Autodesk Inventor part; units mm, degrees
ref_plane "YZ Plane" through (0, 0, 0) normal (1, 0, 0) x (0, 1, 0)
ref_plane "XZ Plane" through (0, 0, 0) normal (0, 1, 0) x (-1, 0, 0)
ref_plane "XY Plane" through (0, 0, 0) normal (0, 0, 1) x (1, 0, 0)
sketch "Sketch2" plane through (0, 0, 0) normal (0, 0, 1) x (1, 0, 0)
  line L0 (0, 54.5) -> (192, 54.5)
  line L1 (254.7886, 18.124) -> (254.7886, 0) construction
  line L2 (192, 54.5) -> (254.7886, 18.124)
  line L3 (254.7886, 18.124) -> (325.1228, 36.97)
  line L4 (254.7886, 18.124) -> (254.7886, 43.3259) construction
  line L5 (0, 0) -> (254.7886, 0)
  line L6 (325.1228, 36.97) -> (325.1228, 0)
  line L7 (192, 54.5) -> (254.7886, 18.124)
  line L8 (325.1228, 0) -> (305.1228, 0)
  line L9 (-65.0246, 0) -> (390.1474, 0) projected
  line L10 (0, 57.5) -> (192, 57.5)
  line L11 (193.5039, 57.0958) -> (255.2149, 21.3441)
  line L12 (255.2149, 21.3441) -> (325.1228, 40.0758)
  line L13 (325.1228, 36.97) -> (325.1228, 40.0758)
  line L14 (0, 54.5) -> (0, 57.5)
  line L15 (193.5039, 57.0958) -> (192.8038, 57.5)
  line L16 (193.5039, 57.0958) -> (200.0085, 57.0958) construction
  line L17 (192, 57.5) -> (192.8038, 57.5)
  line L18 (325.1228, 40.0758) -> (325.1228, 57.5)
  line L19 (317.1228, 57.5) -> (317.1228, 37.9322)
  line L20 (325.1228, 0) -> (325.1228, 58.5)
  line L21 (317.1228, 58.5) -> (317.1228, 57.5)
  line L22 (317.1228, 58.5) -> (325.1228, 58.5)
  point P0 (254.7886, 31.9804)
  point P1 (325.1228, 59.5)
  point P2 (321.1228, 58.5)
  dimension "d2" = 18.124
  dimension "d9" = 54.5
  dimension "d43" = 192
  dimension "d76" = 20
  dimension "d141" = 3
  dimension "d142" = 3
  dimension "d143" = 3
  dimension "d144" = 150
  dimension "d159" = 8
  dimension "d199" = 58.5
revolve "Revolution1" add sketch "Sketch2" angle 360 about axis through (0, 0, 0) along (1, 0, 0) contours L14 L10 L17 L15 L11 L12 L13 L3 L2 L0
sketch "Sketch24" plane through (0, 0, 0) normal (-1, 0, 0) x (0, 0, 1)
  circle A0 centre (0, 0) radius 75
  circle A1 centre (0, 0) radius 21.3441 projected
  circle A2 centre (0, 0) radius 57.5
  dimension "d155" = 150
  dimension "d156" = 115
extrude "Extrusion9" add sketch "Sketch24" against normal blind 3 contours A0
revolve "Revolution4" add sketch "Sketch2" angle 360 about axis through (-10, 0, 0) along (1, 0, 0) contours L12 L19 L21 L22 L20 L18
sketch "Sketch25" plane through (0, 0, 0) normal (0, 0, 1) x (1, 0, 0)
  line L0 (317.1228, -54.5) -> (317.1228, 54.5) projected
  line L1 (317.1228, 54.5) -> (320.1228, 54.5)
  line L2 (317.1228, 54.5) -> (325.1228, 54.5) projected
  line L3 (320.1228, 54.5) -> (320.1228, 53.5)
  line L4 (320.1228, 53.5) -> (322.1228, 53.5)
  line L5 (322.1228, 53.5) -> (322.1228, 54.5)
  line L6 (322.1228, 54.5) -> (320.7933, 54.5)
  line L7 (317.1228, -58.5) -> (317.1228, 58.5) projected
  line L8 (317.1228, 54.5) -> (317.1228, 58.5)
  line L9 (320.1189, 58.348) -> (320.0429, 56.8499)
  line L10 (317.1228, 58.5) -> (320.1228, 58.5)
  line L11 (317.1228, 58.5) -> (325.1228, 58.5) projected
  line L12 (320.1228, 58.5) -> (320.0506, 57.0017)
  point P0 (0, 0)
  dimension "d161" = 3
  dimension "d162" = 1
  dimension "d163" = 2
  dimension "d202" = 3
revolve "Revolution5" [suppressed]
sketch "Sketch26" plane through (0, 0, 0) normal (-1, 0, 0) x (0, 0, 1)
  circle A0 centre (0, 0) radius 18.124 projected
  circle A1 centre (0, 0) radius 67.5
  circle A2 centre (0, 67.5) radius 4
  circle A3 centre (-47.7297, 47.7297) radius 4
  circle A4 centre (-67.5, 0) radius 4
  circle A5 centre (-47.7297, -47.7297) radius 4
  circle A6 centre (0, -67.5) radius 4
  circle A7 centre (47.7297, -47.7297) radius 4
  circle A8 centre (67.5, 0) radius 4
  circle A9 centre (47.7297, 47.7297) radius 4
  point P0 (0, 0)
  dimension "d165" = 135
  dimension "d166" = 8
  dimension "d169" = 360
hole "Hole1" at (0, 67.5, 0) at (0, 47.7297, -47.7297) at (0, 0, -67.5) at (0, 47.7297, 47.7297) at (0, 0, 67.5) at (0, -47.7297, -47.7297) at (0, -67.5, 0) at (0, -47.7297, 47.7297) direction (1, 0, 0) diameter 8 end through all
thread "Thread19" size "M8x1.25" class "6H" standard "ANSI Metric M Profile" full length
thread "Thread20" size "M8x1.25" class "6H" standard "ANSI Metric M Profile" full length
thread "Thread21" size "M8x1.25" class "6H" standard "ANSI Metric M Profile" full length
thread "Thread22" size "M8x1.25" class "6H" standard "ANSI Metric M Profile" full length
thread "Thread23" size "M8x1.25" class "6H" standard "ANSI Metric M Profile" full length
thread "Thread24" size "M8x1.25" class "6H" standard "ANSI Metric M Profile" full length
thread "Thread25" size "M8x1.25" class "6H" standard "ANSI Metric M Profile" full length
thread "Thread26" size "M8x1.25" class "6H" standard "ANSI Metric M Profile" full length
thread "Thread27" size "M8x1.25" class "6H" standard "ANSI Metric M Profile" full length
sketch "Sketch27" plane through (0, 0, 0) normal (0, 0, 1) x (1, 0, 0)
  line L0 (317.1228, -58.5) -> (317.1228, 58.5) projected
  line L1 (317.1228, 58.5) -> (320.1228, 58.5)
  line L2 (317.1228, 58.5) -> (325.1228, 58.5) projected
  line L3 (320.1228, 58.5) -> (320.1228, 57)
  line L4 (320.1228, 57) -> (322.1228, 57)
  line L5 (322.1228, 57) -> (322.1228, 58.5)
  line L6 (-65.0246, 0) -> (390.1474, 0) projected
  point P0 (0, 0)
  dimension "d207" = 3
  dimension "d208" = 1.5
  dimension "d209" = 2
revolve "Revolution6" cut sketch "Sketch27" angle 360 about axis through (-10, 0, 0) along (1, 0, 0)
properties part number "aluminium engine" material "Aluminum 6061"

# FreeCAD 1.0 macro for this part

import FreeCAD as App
import Part
import Sketcher

V = App.Vector
Q = App.Units.Quantity

doc = App.newDocument("Part")
params = doc.addObject("Spreadsheet::Sheet", "Params")
for row, (alias, value) in enumerate([
    ("sketch1_width", "192 mm"),
    ("sketch1_height", "3 mm"),
    ("revolution_angle", "360 deg"),
    ("sketch2_diameter", "150 mm"),
    ("sketch2_diameter2", "115 mm"),
    ("pad1_length", "3 mm"),
    ("sketch3_width", "8 mm"),
    ("revolution2_angle", "360 deg"),
    ("sketch4_diameter", "8 mm"),
    ("hole_diameter", "8 mm"),
    ("sketch5_width", "2 mm"),
    ("sketch5_height", "1.5 mm"),
    ("groove_angle", "360 deg"),
], start=1):
    params.set(f"A{row}", alias)
    params.set(f"B{row}", "=" + value)
    params.setAlias(f"B{row}", alias)

body = doc.addObject("PartDesign::Body", "Body")

# Sketch on XY plane
sketch1 = body.newObject("Sketcher::SketchObject", "Sketch")
sketch1.AttachmentSupport = (doc.getObject("XY_Plane"), [""])
sketch1.MapMode = "FlatFace"
sketch1.addGeometry(Part.LineSegment(V(0, 57.5, 0), V(0, 54.5, 0)), False)
sketch1.addGeometry(Part.LineSegment(V(0, 54.5, 0), V(192, 54.5, 0)), False)
sketch1.addGeometry(Part.LineSegment(V(192, 54.5, 0), V(254.7886, 18.124, 0)), False)
sketch1.addGeometry(Part.LineSegment(V(254.7886, 18.124, 0), V(325.1228, 36.97, 0)), False)
sketch1.addGeometry(Part.LineSegment(V(325.1228, 36.97, 0), V(325.1228, 40.0758, 0)), False)
sketch1.addGeometry(Part.LineSegment(V(325.1228, 40.0758, 0), V(255.2149, 21.3441, 0)), False)
sketch1.addGeometry(Part.LineSegment(V(255.2149, 21.3441, 0), V(193.5039, 57.0958, 0)), False)
sketch1.addGeometry(Part.LineSegment(V(193.5039, 57.0958, 0), V(192.8038, 57.5, 0)), False)
sketch1.addGeometry(Part.LineSegment(V(192.8038, 57.5, 0), V(0, 57.5, 0)), False)
sketch1.addConstraint(Sketcher.Constraint("Coincident", 0, 2, 1, 1))
sketch1.addConstraint(Sketcher.Constraint("Coincident", 1, 2, 2, 1))
sketch1.addConstraint(Sketcher.Constraint("Coincident", 2, 2, 3, 1))
sketch1.addConstraint(Sketcher.Constraint("Coincident", 3, 2, 4, 1))
sketch1.addConstraint(Sketcher.Constraint("Coincident", 4, 2, 5, 1))
sketch1.addConstraint(Sketcher.Constraint("Coincident", 5, 2, 6, 1))
sketch1.addConstraint(Sketcher.Constraint("Coincident", 6, 2, 7, 1))
sketch1.addConstraint(Sketcher.Constraint("Coincident", 7, 2, 8, 1))
sketch1.addConstraint(Sketcher.Constraint("Coincident", 8, 2, 0, 1))
sketch1.addConstraint(Sketcher.Constraint("Vertical", 0))
sketch1.addConstraint(Sketcher.Constraint("Horizontal", 1))
sketch1.addConstraint(Sketcher.Constraint("Vertical", 4))
sketch1.addConstraint(Sketcher.Constraint("Horizontal", 8))
sketch1.addConstraint(Sketcher.Constraint("PointOnObject", 0, 2, -2))
sketch1.addConstraint(Sketcher.Constraint("DistanceX", 1, 1, 1, 2, 192.0))
sketch1.addConstraint(Sketcher.Constraint("DistanceY", 0, 2, 0, 1, 3.0))
sketch1.addConstraint(Sketcher.Constraint("DistanceY", -1, 1, 0, 2, 54.5))
sketch1.addConstraint(Sketcher.Constraint("DistanceY", -1, 1, 2, 2, 18.124))
sketch1.addConstraint(Sketcher.Constraint("DistanceX", 7, 2, 6, 2, 0.7))
sketch1.addConstraint(Sketcher.Constraint("DistanceY", -1, 1, 3, 2, 36.97))
sketch1.addConstraint(Sketcher.Constraint("DistanceY", 2, 2, 5, 2, 3.22))
sketch1.addConstraint(Sketcher.Constraint("DistanceY", 4, 2, 6, 2, 17.02))
sketch1.addConstraint(Sketcher.Constraint("Distance", 5, 72.374))
sketch1.addConstraint(Sketcher.Constraint("DistanceX", 8, 2, 8, 1, 192.8038))
sketch1.addConstraint(Sketcher.Constraint("DistanceY", 4, 1, 4, 2, 3.1058))
sketch1.addConstraint(Sketcher.Constraint("DistanceX", -1, 1, 5, 2, 255.215))
sketch1.addConstraint(Sketcher.Constraint("Distance", 2, 72.5646))
sketch1.setExpression("Constraints[14]", "Params.sketch1_width")
sketch1.setExpression("Constraints[15]", "Params.sketch1_height")
revolution = body.newObject("PartDesign::Revolution", "Revolution")
revolution.Profile = sketch1
revolution.ReferenceAxis = (sketch1, ["H_Axis"])
revolution.setExpression("Angle", "Params.revolution_angle")

# Sketch on YZ plane
sketch2 = body.newObject("Sketcher::SketchObject", "Sketch001")
sketch2.AttachmentSupport = (doc.getObject("YZ_Plane"), [""])
sketch2.MapMode = "FlatFace"
sketch2.addGeometry(Part.Circle(V(0, 0, 0), V(0, 0, 1), 75), False)
sketch2.addGeometry(Part.Circle(V(0, 0, 0), V(0, 0, 1), 58), False)
sketch2.addConstraint(Sketcher.Constraint("Coincident", 0, 3, -1, 1))
sketch2.addConstraint(Sketcher.Constraint("Coincident", 1, 3, -1, 1))
sketch2.addConstraint(Sketcher.Constraint("Diameter", 0, 150.0))
sketch2.addConstraint(Sketcher.Constraint("Diameter", 1, 115.0))
sketch2.setExpression("Constraints[2]", "Params.sketch2_diameter")
sketch2.setExpression("Constraints[3]", "Params.sketch2_diameter2")
pad1 = body.newObject("PartDesign::Pad", "Pad")
pad1.Profile = sketch2
pad1.setExpression("Length", "Params.pad1_length")

# Sketch on XY plane
sketch3 = body.newObject("Sketcher::SketchObject", "Sketch002")
sketch3.AttachmentSupport = (doc.getObject("XY_Plane"), [""])
sketch3.MapMode = "FlatFace"
sketch3.addGeometry(Part.LineSegment(V(317, 38, 0), V(325, 40, 0)), False)
sketch3.addGeometry(Part.LineSegment(V(325, 40, 0), V(325, 58, 0)), False)
sketch3.addGeometry(Part.LineSegment(V(325, 58, 0), V(317, 58, 0)), False)
sketch3.addGeometry(Part.LineSegment(V(317, 58, 0), V(317, 38, 0)), False)
sketch3.addConstraint(Sketcher.Constraint("Coincident", 0, 2, 1, 1))
sketch3.addConstraint(Sketcher.Constraint("Coincident", 1, 2, 2, 1))
sketch3.addConstraint(Sketcher.Constraint("Coincident", 2, 2, 3, 1))
sketch3.addConstraint(Sketcher.Constraint("Coincident", 3, 2, 0, 1))
sketch3.addConstraint(Sketcher.Constraint("Vertical", 1))
sketch3.addConstraint(Sketcher.Constraint("Horizontal", 2))
sketch3.addConstraint(Sketcher.Constraint("Vertical", 3))
sketch3.addConstraint(Sketcher.Constraint("DistanceX", 2, 2, 2, 1, 8.0))
sketch3.addConstraint(Sketcher.Constraint("DistanceY", -1, 1, 1, 2, 58.5))
sketch3.addConstraint(Sketcher.Constraint("Angle", 0, Q("15 deg")))
sketch3.addConstraint(Sketcher.Constraint("DistanceY", 1, 1, 1, 2, 18.4242))
sketch3.addConstraint(Sketcher.Constraint("DistanceX", -1, 1, 0, 2, 325.1228))
sketch3.setExpression("Constraints[7]", "Params.sketch3_width")
revolution2 = body.newObject("PartDesign::Revolution", "Revolution001")
revolution2.Profile = sketch3
revolution2.ReferenceAxis = (sketch3, ["H_Axis"])
revolution2.setExpression("Angle", "Params.revolution2_angle")

# Sketch on YZ plane
sketch4 = body.newObject("Sketcher::SketchObject", "Sketch003")
sketch4.AttachmentSupport = (doc.getObject("YZ_Plane"), [""])
sketch4.MapMode = "FlatFace"
sketch4.addGeometry(Part.Circle(V(67.5, 0, 0), V(0, 0, 1), 4), False)
sketch4.addGeometry(Part.Circle(V(47.7, -47.7, 0), V(0, 0, 1), 4), False)
sketch4.addGeometry(Part.Circle(V(0, -67.5, 0), V(0, 0, 1), 4), False)
sketch4.addGeometry(Part.Circle(V(47.7, 47.7, 0), V(0, 0, 1), 4), False)
sketch4.addGeometry(Part.Circle(V(0, 67.5, 0), V(0, 0, 1), 4), False)
sketch4.addGeometry(Part.Circle(V(-47.7, -47.7, 0), V(0, 0, 1), 4), False)
sketch4.addGeometry(Part.Circle(V(-67.5, 0, 0), V(0, 0, 1), 4), False)
sketch4.addGeometry(Part.Circle(V(-47.7, 47.7, 0), V(0, 0, 1), 4), False)
sketch4.addConstraint(Sketcher.Constraint("Equal", 0, 1))
sketch4.addConstraint(Sketcher.Constraint("Equal", 1, 2))
sketch4.addConstraint(Sketcher.Constraint("Equal", 2, 3))
sketch4.addConstraint(Sketcher.Constraint("Equal", 3, 4))
sketch4.addConstraint(Sketcher.Constraint("Equal", 4, 5))
sketch4.addConstraint(Sketcher.Constraint("Equal", 5, 6))
sketch4.addConstraint(Sketcher.Constraint("Equal", 6, 7))
sketch4.addConstraint(Sketcher.Constraint("Symmetric", 2, 3, 4, 3, -1, 1))
sketch4.addConstraint(Sketcher.Constraint("Symmetric", 3, 3, 5, 3, -1, 1))
sketch4.addConstraint(Sketcher.Constraint("Symmetric", 0, 3, 6, 3, -1, 1))
sketch4.addConstraint(Sketcher.Constraint("Symmetric", 1, 3, 7, 3, -1, 1))
sketch4.addConstraint(Sketcher.Constraint("Symmetric", 1, 3, 5, 3, -2))
sketch4.addConstraint(Sketcher.Constraint("PointOnObject", 0, 3, -1))
sketch4.addConstraint(Sketcher.Constraint("PointOnObject", 2, 3, -2))
sketch4.addConstraint(Sketcher.Constraint("Diameter", 0, 8.0))
sketch4.addConstraint(Sketcher.Constraint("DistanceY", 2, 3, 4, 3, 135.0))
sketch4.addConstraint(Sketcher.Constraint("DistanceX", -1, 1, 0, 3, 67.5))
sketch4.addConstraint(Sketcher.Constraint("DistanceX", -1, 1, 1, 3, 47.7297))
sketch4.addConstraint(Sketcher.Constraint("DistanceY", 1, 3, -1, 1, 47.7297))
sketch4.setExpression("Constraints[14]", "Params.sketch4_diameter")
doc.recompute()
hole = body.newObject("PartDesign::Hole", "Hole")
hole.Profile = sketch4
hole.ThreadType = "None"
hole.setExpression("Diameter", "Params.hole_diameter")
hole.DepthType = "ThroughAll"
hole.Reversed = True

# Sketch on XY plane
sketch5 = body.newObject("Sketcher::SketchObject", "Sketch004")
sketch5.AttachmentSupport = (doc.getObject("XY_Plane"), [""])
sketch5.MapMode = "FlatFace"
sketch5.addGeometry(Part.LineSegment(V(322.1, 58.5, 0), V(320.1, 58.5, 0)), False)
sketch5.addGeometry(Part.LineSegment(V(320.1, 58.5, 0), V(320.1, 57, 0)), False)
sketch5.addGeometry(Part.LineSegment(V(320.1, 57, 0), V(322.1, 57, 0)), False)
sketch5.addGeometry(Part.LineSegment(V(322.1, 57, 0), V(322.1, 58.5, 0)), False)
sketch5.addConstraint(Sketcher.Constraint("Coincident", 0, 2, 1, 1))
sketch5.addConstraint(Sketcher.Constraint("Coincident", 1, 2, 2, 1))
sketch5.addConstraint(Sketcher.Constraint("Coincident", 2, 2, 3, 1))
sketch5.addConstraint(Sketcher.Constraint("Coincident", 3, 2, 0, 1))
sketch5.addConstraint(Sketcher.Constraint("Horizontal", 0))
sketch5.addConstraint(Sketcher.Constraint("Vertical", 1))
sketch5.addConstraint(Sketcher.Constraint("Horizontal", 2))
sketch5.addConstraint(Sketcher.Constraint("Vertical", 3))
sketch5.addConstraint(Sketcher.Constraint("DistanceX", 0, 2, 0, 1, 2.0))
sketch5.addConstraint(Sketcher.Constraint("DistanceY", 1, 2, 1, 1, 1.5))
sketch5.addConstraint(Sketcher.Constraint("DistanceY", -1, 1, 1, 2, 57.0))
sketch5.addConstraint(Sketcher.Constraint("DistanceX", -1, 1, 0, 2, 320.1228))
sketch5.setExpression("Constraints[8]", "Params.sketch5_width")
sketch5.setExpression("Constraints[9]", "Params.sketch5_height")
groove = body.newObject("PartDesign::Groove", "Groove")
groove.Profile = sketch5
groove.ReferenceAxis = (sketch5, ["H_Axis"])
groove.setExpression("Angle", "Params.groove_angle")

doc.recompute()
